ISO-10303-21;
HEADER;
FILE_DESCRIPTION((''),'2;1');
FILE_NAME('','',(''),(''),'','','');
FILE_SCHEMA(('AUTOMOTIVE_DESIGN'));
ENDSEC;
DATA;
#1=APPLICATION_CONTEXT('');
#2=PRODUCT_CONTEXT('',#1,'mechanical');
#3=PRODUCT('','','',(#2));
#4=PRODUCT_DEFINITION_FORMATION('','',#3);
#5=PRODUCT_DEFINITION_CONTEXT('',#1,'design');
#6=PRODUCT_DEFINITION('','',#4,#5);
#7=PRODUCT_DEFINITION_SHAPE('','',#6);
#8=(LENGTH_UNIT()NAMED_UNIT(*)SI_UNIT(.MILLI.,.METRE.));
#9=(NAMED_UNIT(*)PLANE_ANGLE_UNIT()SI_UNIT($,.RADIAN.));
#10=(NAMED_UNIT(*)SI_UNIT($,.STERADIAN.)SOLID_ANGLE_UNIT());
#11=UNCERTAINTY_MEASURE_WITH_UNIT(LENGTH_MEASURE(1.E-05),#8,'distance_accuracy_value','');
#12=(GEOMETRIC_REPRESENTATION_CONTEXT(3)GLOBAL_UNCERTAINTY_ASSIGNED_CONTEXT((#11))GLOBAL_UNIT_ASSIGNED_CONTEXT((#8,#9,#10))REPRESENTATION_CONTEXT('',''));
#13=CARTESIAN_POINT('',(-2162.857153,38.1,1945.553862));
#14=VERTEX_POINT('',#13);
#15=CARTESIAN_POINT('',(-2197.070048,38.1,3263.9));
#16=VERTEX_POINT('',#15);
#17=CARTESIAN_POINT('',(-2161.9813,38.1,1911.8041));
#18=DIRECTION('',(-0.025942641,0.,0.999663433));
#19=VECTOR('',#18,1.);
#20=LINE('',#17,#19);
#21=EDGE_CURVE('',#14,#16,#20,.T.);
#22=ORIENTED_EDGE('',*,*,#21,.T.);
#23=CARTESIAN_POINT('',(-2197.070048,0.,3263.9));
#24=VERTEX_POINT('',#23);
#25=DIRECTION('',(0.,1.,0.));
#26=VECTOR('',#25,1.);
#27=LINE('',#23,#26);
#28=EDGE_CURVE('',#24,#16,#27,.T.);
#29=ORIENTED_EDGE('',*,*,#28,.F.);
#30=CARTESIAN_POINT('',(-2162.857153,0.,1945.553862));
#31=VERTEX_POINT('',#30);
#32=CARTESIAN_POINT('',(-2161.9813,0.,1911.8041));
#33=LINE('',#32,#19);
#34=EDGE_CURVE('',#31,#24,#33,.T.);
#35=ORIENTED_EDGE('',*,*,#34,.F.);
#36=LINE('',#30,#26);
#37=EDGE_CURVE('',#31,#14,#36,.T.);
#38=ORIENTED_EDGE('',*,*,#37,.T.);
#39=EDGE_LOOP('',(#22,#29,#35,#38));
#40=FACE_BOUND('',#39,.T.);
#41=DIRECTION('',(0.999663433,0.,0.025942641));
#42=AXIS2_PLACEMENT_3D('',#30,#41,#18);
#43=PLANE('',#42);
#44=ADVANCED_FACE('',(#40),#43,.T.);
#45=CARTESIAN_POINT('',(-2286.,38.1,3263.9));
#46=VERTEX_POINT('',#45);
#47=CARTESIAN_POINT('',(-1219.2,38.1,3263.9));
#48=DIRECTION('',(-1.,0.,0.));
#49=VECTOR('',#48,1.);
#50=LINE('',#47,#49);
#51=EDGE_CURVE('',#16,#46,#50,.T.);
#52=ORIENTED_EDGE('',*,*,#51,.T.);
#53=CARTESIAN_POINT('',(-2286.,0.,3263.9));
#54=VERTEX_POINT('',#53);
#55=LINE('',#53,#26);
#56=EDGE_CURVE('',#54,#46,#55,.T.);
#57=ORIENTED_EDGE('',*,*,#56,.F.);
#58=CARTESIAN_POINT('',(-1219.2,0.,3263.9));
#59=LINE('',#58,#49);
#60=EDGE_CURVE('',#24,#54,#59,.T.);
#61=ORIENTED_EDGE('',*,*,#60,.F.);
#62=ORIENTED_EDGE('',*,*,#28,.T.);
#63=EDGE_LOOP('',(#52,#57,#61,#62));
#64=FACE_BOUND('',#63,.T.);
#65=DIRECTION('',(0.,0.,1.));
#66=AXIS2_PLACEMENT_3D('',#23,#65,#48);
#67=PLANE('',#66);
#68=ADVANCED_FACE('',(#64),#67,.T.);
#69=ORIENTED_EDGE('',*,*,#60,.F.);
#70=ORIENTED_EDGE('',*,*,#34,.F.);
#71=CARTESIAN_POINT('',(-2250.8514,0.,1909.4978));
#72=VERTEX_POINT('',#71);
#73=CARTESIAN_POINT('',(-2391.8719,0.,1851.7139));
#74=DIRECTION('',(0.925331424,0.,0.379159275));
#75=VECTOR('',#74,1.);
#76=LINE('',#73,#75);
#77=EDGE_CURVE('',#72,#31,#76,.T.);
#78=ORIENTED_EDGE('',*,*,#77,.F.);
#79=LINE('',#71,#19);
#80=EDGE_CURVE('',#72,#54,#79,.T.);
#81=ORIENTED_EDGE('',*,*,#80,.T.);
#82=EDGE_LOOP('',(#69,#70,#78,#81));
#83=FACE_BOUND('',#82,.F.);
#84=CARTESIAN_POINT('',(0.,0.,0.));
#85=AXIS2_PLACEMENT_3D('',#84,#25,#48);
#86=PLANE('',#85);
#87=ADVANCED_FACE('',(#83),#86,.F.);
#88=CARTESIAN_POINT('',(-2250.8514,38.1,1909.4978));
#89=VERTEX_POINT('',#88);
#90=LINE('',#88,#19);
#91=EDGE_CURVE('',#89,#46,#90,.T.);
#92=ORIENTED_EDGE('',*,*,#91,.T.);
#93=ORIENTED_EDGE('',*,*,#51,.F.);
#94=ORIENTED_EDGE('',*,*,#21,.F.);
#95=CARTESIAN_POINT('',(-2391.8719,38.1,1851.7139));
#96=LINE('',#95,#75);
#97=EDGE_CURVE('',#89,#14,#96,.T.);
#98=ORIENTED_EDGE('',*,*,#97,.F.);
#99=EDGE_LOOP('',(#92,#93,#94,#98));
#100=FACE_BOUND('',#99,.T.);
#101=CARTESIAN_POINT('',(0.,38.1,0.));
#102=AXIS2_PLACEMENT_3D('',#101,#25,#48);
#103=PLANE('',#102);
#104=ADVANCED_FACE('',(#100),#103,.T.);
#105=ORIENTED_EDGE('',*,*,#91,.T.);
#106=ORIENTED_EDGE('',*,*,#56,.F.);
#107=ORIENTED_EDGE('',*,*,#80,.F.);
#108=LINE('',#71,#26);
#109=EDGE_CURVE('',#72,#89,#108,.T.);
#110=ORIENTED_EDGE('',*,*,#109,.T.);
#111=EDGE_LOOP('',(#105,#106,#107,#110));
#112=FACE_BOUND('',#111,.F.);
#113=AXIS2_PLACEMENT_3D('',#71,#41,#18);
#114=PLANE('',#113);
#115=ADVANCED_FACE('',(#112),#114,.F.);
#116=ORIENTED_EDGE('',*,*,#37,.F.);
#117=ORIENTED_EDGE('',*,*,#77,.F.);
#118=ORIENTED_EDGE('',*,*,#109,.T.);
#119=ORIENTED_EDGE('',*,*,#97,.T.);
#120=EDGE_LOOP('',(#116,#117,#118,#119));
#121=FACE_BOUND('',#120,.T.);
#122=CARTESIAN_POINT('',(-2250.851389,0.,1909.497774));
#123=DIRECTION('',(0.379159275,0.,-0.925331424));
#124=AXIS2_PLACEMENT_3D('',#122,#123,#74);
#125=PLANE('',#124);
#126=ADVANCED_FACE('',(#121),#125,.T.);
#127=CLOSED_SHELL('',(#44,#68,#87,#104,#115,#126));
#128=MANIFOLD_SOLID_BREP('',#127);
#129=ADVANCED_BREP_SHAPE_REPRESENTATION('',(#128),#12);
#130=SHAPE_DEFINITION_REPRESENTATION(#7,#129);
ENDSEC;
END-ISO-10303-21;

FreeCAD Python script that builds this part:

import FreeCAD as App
import Part
import Sketcher
Q = App.Units.Quantity

doc = App.newDocument("Part")
body = doc.addObject("PartDesign::Body", "Body")

# Sketch on XZ plane
sketch1 = body.newObject("Sketcher::SketchObject", "Sketch")
sketch1.AttachmentSupport = (doc.getObject("XZ_Plane"), [""])
sketch1.MapMode = "FlatFace"
sketch1.addGeometry(Part.LineSegment(App.Vector(-2251, 1909, 0), App.Vector(-2286, 3264, 0)), False)
sketch1.addGeometry(Part.LineSegment(App.Vector(-2286, 3264, 0), App.Vector(-2197, 3264, 0)), False)
sketch1.addGeometry(Part.LineSegment(App.Vector(-2197, 3264, 0), App.Vector(-2163, 1946, 0)), False)
sketch1.addGeometry(Part.LineSegment(App.Vector(-2163, 1946, 0), App.Vector(-2251, 1909, 0)), False)
sketch1.addConstraint(Sketcher.Constraint("Coincident", 0, 2, 1, 1))
sketch1.addConstraint(Sketcher.Constraint("Coincident", 1, 2, 2, 1))
sketch1.addConstraint(Sketcher.Constraint("Coincident", 2, 2, 3, 1))
sketch1.addConstraint(Sketcher.Constraint("Coincident", 3, 2, 0, 1))
sketch1.addConstraint(Sketcher.Constraint("Horizontal", 1))
sketch1.addConstraint(Sketcher.Constraint("Parallel", 0, 2))
sketch1.addConstraint(Sketcher.Constraint("DistanceX", 0, 2, -1, 1, Q("90 in")))
sketch1.addConstraint(Sketcher.Constraint("DistanceY", -1, 1, 0, 2, Q("128.5 in")))
sketch1.addConstraint(Sketcher.Constraint("Distance", 3, Q("3.7439 in")))
sketch1.addConstraint(Sketcher.Constraint("DistanceX", 1, 1, 1, 2, 88.93))
sketch1.addConstraint(Sketcher.Constraint("DistanceY", -1, 1, 2, 2, Q("76.5966 in")))
sketch1.addConstraint(Sketcher.Constraint("DistanceX", 3, 2, -1, 1, Q("88.6162 in")))
pad1 = body.newObject("PartDesign::Pad", "Pad")
pad1.Profile = sketch1
pad1.Length = Q("1.5 in")
pad1.Reversed = True

doc.recompute()
